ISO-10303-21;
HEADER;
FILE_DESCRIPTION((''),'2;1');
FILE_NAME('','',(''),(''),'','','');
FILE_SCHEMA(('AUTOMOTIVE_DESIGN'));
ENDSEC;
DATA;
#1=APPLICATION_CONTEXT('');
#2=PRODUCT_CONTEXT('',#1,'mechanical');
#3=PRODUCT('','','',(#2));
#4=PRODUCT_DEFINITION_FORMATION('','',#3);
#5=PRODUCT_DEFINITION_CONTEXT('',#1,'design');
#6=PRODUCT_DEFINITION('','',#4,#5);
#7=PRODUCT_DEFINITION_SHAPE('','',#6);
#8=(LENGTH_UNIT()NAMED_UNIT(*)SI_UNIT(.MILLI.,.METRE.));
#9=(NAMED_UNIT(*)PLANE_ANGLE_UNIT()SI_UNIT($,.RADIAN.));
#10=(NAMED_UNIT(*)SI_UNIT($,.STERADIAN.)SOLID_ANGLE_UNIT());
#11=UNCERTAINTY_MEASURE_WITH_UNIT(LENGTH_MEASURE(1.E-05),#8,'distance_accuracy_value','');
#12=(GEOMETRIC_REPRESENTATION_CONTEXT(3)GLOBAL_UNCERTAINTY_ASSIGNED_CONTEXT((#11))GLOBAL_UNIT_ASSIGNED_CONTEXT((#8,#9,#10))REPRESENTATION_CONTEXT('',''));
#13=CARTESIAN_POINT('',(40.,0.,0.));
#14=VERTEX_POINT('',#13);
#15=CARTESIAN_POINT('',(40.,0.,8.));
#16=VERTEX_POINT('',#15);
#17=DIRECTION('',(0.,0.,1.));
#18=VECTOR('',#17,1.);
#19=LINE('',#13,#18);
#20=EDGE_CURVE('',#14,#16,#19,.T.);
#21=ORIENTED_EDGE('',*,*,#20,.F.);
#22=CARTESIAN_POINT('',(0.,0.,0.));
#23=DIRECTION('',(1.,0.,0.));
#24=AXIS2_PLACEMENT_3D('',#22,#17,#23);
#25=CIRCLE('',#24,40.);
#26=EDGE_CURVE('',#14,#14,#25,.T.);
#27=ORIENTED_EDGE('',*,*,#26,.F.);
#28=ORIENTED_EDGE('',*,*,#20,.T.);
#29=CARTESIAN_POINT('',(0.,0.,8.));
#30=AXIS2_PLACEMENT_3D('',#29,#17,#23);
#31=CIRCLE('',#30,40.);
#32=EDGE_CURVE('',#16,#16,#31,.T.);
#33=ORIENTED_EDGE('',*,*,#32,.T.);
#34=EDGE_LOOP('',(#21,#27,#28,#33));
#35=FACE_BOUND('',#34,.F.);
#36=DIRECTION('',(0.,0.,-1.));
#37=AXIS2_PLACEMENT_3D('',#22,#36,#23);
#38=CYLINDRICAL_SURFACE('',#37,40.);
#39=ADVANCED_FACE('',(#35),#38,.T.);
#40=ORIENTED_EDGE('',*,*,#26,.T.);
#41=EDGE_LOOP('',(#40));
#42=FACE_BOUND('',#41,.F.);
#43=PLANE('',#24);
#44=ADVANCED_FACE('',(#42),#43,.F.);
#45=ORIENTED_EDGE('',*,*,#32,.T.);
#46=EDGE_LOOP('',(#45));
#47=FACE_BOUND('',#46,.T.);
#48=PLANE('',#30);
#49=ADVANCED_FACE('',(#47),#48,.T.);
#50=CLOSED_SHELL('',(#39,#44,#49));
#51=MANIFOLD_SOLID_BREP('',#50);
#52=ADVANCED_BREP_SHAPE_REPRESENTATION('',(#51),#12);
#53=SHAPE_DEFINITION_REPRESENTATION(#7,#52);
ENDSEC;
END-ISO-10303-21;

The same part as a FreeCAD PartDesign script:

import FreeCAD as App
import Part
import Sketcher

doc = App.newDocument("Part")
body = doc.addObject("PartDesign::Body", "Body")

# Sketch on XY plane
sketch1 = body.newObject("Sketcher::SketchObject", "Sketch")
sketch1.AttachmentSupport = (doc.getObject("XY_Plane"), [""])
sketch1.MapMode = "FlatFace"
sketch1.addGeometry(Part.Circle(App.Vector(0, 0, 0), App.Vector(0, 0, 1), 40), False)
sketch1.addConstraint(Sketcher.Constraint("Coincident", 0, 3, -1, 1))
sketch1.addConstraint(Sketcher.Constraint("Diameter", 0, 80.0))
pad1 = body.newObject("PartDesign::Pad", "Pad")
pad1.Profile = sketch1
pad1.Length = 8

doc.recompute()
